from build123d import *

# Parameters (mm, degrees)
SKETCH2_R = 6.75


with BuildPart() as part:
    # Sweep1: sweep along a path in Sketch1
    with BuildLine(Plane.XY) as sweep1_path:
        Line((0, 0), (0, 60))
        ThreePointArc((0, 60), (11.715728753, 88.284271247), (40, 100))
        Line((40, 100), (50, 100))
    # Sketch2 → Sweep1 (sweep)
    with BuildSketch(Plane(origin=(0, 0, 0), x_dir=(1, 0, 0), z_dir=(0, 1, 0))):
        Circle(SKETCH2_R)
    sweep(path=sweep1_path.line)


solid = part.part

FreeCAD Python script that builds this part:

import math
import FreeCAD as App
import Part
import Sketcher
from FreeCAD import Vector
Q = App.Units.Quantity

doc = App.newDocument("Part")
params = doc.addObject("Spreadsheet::Sheet", "Params")
for row, (alias, value) in enumerate([
    ("sketch1_diameter", "13.5 mm"),
    ("sketch2_radius", "40 mm"),
    ("sketch2_width", "10 mm"),
    ("sketch2_height", "60 mm"),
], start=1):
    params.set(f"A{row}", alias)
    params.set(f"B{row}", "=" + value)
    params.setAlias(f"B{row}", alias)

body = doc.addObject("PartDesign::Body", "Body")

# Sketch on XZ plane
sketch1 = doc.addObject("Sketcher::SketchObject", "Sketch")
body.addObject(sketch1)
sketch1.AttachmentSupport = (doc.XZ_Plane, [""])
sketch1.MapMode = "FlatFace"
sketch1.addGeometry(Part.Circle(Vector(0, 0, 0), Vector(0, 0, 1), 7), False)
sketch1.addConstraint([
    Sketcher.Constraint("Coincident", 0, 3, -1, 1),
    Sketcher.Constraint("Diameter", 0, Q("13.5 mm")),
])
sketch1.setExpression("Constraints[1]", "Params.sketch1_diameter")

# Sketch on XY plane
sketch2 = doc.addObject("Sketcher::SketchObject", "Sketch001")
body.addObject(sketch2)
sketch2.AttachmentSupport = (doc.XY_Plane, [""])
sketch2.MapMode = "FlatFace"
sketch2.addGeometry([
    Part.LineSegment(Vector(0, 0, 0), Vector(0, 60, 0)),
    Part.ArcOfCircle(Part.Circle(Vector(40, 60, 0), Vector(0, 0, 1), 40), math.radians(90), math.radians(180)),
    Part.LineSegment(Vector(40, 100, 0), Vector(50, 100, 0)),
], False)
sketch2.addConstraint([
    Sketcher.Constraint("Tangent", 0, 2, 1, 2),
    Sketcher.Constraint("Tangent", 1, 1, 2, 1),
    Sketcher.Constraint("Vertical", 0),
    Sketcher.Constraint("Horizontal", 2),
    Sketcher.Constraint("Coincident", 0, 1, -1, 1),
    Sketcher.Constraint("Radius", 1, Q("40 mm")),
    Sketcher.Constraint("DistanceX", 2, 1, 2, 2, Q("10 mm")),
    Sketcher.Constraint("DistanceY", 0, 1, 0, 2, Q("60 mm")),
])
sketch2.setExpression("Constraints[5]", "Params.sketch2_radius")
sketch2.setExpression("Constraints[6]", "Params.sketch2_width")
sketch2.setExpression("Constraints[7]", "Params.sketch2_height")
doc.recompute()

additivepipe = doc.addObject("PartDesign::AdditivePipe", "AdditivePipe")
body.addObject(additivepipe)
additivepipe.Profile = sketch1
additivepipe.Spine = (sketch2, ["Edge1", "Edge2", "Edge3"])

doc.recompute()
